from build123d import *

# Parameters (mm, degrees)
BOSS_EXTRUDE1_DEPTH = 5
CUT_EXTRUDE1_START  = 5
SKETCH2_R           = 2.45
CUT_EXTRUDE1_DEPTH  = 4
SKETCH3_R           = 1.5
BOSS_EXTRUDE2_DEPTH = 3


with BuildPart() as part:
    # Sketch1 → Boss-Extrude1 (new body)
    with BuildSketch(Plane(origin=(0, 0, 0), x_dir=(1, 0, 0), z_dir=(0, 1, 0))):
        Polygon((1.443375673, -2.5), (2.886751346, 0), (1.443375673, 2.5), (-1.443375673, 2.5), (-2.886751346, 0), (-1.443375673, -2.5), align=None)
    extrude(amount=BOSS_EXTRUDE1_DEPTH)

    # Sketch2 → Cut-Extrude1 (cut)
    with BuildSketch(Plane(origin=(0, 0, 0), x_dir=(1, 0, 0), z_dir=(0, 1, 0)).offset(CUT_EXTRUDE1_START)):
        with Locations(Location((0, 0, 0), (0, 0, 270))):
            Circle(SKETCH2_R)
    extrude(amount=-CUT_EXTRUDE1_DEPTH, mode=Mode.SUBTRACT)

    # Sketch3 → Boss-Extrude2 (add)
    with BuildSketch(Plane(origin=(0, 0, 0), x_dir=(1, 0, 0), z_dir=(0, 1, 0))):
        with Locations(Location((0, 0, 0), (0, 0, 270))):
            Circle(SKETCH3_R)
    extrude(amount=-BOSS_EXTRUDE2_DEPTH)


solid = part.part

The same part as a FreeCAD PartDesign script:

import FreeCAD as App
import Part
import Sketcher
from FreeCAD import Vector
Q = App.Units.Quantity


def add_polygon(sketch, points):
    """Adds a closed chain of lines whose ends are joined by coincident constraints."""
    first, n = sketch.GeometryCount, len(points)
    for a, b in zip(points, points[1:] + points[:1]):
        sketch.addGeometry(Part.LineSegment(App.Vector(*a, 0), App.Vector(*b, 0)), False)
    for i in range(n):
        sketch.addConstraint(Sketcher.Constraint("Coincident", first + i, 2, first + (i + 1) % n, 1))

doc = App.newDocument("Part")
body = doc.addObject("PartDesign::Body", "Body")

sketch1 = body.newObject("Sketcher::SketchObject", "Sketch")
sketch1.AttachmentSupport = (doc.getObject("XZ_Plane"), [""])
sketch1.MapMode = "FlatFace"
add_polygon(sketch1, [(1.4, 2.5), (2.9, 0), (1.4, -2.5), (-1.4, -2.5), (-2.9, 0), (-1.4, 2.5)])
sketch1.addConstraint([
    Sketcher.Constraint("Horizontal", 2),
    Sketcher.Constraint("Horizontal", 5),
    Sketcher.Constraint("Symmetric", 0, 2, 3, 2, -1, 1),
    Sketcher.Constraint("Symmetric", 1, 2, 4, 2, -1, 1),
    Sketcher.Constraint("PointOnObject", 0, 2, -1),
    Sketcher.Constraint("Parallel", 0, 3),
    Sketcher.Constraint("Vertical", 2, 2, 4, 2),
    Sketcher.Constraint("Angle", 0, Q("-60 deg")),
    Sketcher.Constraint("DistanceY", 2, 2, 4, 2, 5.0),
    Sketcher.Constraint("DistanceX", 2, 2, 2, 1, 2.886751),
])
pad1 = body.newObject("PartDesign::Pad", "Pad")
pad1.Profile = sketch1
pad1.Length = 5
pad1.Reversed = True

sketch2 = body.newObject("Sketcher::SketchObject", "Sketch001")
sketch2.AttachmentSupport = (doc.getObject("XZ_Plane"), [""])
sketch2.MapMode = "FlatFace"
sketch2.AttachmentOffset = App.Placement(Vector(0, 0, -5), App.Rotation())
sketch2.addGeometry(Part.Circle(Vector(0, 0, 0), Vector(0, 0, 1), 2.5), False)
sketch2.addConstraint([
    Sketcher.Constraint("Coincident", 0, 3, -1, 1),
    Sketcher.Constraint("Diameter", 0, 4.9),
])
pocket1 = body.newObject("PartDesign::Pocket", "Pocket")
pocket1.Profile = sketch2
pocket1.Length = 4
pocket1.Reversed = True

sketch3 = body.newObject("Sketcher::SketchObject", "Sketch002")
sketch3.AttachmentSupport = (doc.getObject("XZ_Plane"), [""])
sketch3.MapMode = "FlatFace"
sketch3.addGeometry(Part.Circle(Vector(0, 0, 0), Vector(0, 0, 1), 1.5), False)
sketch3.addConstraint([
    Sketcher.Constraint("Coincident", 0, 3, -1, 1),
    Sketcher.Constraint("Diameter", 0, 3.0),
])
pad2 = body.newObject("PartDesign::Pad", "Pad001")
pad2.Profile = sketch3
pad2.Length = 3

doc.recompute()
